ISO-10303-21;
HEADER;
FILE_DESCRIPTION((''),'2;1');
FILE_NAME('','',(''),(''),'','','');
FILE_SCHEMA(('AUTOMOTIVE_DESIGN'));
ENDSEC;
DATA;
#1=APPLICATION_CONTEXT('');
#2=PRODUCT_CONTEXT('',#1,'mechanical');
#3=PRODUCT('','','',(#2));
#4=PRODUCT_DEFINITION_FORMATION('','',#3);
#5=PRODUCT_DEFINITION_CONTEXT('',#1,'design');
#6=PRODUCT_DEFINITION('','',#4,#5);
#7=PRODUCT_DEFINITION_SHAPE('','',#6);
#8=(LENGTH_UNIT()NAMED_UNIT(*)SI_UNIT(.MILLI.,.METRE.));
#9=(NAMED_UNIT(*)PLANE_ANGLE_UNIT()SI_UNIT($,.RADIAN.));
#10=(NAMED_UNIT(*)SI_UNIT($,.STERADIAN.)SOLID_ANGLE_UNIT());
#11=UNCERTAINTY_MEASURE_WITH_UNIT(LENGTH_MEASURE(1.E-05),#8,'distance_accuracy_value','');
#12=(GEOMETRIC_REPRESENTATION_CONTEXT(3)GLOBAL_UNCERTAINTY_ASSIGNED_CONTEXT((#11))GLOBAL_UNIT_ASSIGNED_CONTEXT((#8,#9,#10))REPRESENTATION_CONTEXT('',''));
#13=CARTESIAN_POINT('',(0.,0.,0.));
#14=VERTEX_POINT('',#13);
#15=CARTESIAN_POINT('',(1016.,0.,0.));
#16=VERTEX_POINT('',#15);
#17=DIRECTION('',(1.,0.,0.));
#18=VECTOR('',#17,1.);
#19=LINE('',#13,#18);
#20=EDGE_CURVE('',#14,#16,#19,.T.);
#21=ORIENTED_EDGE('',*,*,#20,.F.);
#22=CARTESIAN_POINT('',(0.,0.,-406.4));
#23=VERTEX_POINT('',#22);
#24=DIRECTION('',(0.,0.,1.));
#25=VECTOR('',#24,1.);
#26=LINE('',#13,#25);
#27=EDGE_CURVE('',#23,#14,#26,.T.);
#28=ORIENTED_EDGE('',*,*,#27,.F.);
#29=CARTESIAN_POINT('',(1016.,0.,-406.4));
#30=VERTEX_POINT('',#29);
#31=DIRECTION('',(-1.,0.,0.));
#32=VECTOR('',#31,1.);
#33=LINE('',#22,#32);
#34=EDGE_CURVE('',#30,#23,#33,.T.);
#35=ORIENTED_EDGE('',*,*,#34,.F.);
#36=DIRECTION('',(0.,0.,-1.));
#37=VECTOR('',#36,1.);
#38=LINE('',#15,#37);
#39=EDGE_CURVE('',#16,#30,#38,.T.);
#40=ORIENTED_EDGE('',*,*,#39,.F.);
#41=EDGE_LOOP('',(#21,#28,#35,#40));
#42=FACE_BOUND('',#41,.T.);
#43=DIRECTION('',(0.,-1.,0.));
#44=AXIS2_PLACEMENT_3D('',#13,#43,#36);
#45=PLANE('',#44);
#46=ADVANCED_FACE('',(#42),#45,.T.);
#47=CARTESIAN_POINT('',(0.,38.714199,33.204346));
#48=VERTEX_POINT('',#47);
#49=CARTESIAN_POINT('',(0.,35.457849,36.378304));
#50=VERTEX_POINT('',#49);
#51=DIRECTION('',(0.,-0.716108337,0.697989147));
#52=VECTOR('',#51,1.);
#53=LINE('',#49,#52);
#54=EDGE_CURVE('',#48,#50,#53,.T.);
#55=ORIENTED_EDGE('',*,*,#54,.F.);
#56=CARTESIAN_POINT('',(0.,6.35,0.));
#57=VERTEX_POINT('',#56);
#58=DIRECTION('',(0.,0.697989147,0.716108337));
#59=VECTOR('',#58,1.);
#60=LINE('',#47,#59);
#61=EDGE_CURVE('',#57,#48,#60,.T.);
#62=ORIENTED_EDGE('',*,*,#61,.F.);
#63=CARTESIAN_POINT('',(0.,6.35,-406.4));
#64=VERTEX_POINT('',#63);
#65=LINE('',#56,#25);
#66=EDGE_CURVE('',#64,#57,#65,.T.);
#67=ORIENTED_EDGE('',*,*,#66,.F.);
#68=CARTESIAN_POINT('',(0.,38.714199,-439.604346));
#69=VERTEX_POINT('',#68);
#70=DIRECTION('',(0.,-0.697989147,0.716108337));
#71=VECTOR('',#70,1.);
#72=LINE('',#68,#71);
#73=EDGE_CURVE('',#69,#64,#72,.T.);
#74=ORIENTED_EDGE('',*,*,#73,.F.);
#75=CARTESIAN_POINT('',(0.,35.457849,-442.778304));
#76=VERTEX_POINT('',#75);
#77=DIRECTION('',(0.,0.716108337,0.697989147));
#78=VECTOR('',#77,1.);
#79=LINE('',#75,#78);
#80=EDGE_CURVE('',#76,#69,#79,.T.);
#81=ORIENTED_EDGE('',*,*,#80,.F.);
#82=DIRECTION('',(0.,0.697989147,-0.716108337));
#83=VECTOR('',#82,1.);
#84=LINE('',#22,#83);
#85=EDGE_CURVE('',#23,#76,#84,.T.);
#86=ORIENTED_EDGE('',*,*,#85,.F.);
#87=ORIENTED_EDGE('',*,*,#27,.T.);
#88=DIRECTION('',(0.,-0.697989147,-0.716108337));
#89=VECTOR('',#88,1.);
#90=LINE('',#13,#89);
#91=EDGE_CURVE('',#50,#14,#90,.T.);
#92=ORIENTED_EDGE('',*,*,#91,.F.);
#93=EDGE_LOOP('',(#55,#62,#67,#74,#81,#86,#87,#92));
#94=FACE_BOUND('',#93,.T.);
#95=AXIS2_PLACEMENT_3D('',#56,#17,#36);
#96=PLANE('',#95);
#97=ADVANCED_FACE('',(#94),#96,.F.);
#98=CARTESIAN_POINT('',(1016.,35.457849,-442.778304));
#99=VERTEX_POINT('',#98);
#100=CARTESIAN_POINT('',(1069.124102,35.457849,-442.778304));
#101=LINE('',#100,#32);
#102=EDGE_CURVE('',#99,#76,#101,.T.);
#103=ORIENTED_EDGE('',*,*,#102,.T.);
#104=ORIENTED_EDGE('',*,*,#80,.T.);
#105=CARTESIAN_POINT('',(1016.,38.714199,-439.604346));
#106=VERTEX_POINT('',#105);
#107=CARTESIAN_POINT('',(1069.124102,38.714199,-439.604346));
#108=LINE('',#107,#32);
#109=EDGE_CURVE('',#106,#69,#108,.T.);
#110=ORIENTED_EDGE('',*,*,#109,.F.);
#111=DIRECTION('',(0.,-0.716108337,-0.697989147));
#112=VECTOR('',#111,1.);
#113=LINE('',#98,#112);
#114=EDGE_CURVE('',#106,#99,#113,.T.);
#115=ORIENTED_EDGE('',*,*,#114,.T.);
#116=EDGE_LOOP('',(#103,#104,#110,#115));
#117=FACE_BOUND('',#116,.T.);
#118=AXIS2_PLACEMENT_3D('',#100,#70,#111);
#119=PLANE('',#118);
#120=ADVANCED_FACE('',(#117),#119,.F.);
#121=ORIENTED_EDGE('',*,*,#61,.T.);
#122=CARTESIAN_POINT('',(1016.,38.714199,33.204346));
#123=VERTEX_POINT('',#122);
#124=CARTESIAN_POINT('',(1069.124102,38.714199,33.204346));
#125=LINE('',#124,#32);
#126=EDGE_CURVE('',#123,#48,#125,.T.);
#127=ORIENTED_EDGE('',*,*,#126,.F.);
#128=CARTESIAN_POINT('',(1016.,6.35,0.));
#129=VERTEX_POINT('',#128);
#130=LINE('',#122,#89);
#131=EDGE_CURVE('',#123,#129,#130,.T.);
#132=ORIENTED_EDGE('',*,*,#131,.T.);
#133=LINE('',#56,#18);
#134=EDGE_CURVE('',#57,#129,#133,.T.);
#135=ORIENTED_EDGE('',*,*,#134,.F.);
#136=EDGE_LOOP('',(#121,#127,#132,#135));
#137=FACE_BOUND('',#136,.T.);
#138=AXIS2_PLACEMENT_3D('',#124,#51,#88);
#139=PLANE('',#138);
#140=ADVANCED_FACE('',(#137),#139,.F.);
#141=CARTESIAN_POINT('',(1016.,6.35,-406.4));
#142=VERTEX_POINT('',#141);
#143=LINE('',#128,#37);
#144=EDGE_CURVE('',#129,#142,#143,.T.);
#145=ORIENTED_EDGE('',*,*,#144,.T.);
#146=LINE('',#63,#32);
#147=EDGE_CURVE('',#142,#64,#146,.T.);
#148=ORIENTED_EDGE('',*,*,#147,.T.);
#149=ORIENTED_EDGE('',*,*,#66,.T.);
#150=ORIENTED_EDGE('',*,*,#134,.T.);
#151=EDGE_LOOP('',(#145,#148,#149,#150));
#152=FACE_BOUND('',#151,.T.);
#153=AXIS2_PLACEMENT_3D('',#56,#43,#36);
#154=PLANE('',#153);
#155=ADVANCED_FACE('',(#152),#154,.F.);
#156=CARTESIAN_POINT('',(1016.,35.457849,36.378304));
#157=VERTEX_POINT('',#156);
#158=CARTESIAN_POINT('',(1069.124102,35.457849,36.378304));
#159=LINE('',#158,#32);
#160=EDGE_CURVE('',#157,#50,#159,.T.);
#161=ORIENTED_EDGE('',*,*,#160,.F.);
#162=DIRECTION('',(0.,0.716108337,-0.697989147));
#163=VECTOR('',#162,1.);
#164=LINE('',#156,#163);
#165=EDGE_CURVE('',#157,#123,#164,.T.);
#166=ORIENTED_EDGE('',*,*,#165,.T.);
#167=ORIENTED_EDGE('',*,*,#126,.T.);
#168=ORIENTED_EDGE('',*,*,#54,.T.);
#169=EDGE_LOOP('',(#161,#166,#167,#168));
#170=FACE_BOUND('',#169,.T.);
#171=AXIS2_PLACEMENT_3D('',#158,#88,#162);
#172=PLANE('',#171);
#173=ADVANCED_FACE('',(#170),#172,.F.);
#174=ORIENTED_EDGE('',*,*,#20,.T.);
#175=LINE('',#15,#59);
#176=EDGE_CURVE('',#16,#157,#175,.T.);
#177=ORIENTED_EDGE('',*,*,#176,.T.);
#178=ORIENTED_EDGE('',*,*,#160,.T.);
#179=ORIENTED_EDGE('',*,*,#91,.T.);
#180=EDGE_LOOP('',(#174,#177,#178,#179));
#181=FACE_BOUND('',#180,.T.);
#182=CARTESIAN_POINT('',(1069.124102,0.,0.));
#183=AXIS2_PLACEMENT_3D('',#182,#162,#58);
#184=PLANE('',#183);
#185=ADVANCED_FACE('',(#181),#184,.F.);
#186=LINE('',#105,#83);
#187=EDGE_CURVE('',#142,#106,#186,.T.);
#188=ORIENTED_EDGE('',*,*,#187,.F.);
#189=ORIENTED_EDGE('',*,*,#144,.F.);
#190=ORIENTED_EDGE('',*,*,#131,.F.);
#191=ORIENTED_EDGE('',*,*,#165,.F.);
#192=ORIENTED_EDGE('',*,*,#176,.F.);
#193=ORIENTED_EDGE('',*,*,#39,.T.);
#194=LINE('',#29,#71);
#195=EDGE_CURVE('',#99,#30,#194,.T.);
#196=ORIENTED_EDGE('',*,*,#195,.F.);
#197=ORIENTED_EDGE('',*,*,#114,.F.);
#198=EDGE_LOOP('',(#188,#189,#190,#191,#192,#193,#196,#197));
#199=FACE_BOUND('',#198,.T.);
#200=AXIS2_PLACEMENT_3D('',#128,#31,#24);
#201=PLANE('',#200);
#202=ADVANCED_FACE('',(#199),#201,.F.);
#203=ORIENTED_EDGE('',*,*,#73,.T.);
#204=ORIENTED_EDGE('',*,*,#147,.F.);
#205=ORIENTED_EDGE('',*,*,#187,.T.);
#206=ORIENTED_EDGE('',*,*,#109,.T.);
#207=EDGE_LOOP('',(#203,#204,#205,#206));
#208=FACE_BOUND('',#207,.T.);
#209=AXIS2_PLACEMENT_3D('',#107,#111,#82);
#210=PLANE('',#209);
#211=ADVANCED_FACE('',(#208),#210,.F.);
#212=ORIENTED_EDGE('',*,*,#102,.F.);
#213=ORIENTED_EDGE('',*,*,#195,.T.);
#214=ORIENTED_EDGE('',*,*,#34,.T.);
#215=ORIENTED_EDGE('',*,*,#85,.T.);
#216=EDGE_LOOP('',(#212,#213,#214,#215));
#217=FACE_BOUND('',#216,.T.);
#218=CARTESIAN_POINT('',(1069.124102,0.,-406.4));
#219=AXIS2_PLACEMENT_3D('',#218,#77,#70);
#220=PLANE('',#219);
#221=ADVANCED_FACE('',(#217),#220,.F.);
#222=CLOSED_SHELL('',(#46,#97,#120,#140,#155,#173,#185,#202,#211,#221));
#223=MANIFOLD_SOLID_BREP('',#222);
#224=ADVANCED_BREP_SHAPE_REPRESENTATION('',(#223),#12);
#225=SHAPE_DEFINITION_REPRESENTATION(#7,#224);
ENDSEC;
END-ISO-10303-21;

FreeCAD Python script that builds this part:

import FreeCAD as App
import Part
import Sketcher
Q = App.Units.Quantity

doc = App.newDocument("Part")
body = doc.addObject("PartDesign::Body", "Body")

# Sketch on XZ plane
sketch1 = body.newObject("Sketcher::SketchObject", "Sketch")
sketch1.AttachmentSupport = (doc.getObject("XZ_Plane"), [""])
sketch1.MapMode = "FlatFace"
sketch1.addGeometry(Part.LineSegment(App.Vector(0, -406, 0), App.Vector(0, 0, 0)), False)
sketch1.addGeometry(Part.LineSegment(App.Vector(0, 0, 0), App.Vector(1016, 0, 0)), False)
sketch1.addGeometry(Part.LineSegment(App.Vector(1016, 0, 0), App.Vector(1016, -406, 0)), False)
sketch1.addGeometry(Part.LineSegment(App.Vector(1016, -406, 0), App.Vector(0, -406, 0)), False)
sketch1.addConstraint(Sketcher.Constraint("Coincident", 0, 2, 1, 1))
sketch1.addConstraint(Sketcher.Constraint("Coincident", 1, 2, 2, 1))
sketch1.addConstraint(Sketcher.Constraint("Coincident", 2, 2, 3, 1))
sketch1.addConstraint(Sketcher.Constraint("Coincident", 3, 2, 0, 1))
sketch1.addConstraint(Sketcher.Constraint("Vertical", 0))
sketch1.addConstraint(Sketcher.Constraint("Horizontal", 1))
sketch1.addConstraint(Sketcher.Constraint("Vertical", 2))
sketch1.addConstraint(Sketcher.Constraint("Horizontal", 3))
sketch1.addConstraint(Sketcher.Constraint("Coincident", 0, 2, -1, 1))
sketch1.addConstraint(Sketcher.Constraint("DistanceX", 1, 1, 1, 2, Q("40 in")))
sketch1.addConstraint(Sketcher.Constraint("DistanceY", 0, 1, 0, 2, Q("16 in")))
pad1 = body.newObject("PartDesign::Pad", "Pad")
pad1.Profile = sketch1
pad1.Length = Q("0.25 in")
pad1.Reversed = True

# Sketch on YZ plane
sketch2 = body.newObject("Sketcher::SketchObject", "Sketch001")
sketch2.AttachmentSupport = (doc.getObject("YZ_Plane"), [""])
sketch2.MapMode = "FlatFace"
sketch2.addGeometry(Part.LineSegment(App.Vector(35.5, 36.4, 0), App.Vector(0, 0, 0)), False)
sketch2.addGeometry(Part.LineSegment(App.Vector(0, 0, 0), App.Vector(6.3, 0, 0)), False)
sketch2.addGeometry(Part.LineSegment(App.Vector(6.3, 0, 0), App.Vector(38.7, 33.2, 0)), False)
sketch2.addGeometry(Part.LineSegment(App.Vector(38.7, 33.2, 0), App.Vector(35.5, 36.4, 0)), False)
sketch2.addGeometry(Part.LineSegment(App.Vector(6.3, -406.4, 0), App.Vector(0, -406.4, 0)), False)
sketch2.addGeometry(Part.LineSegment(App.Vector(0, -406.4, 0), App.Vector(35.5, -442.8, 0)), False)
sketch2.addGeometry(Part.LineSegment(App.Vector(35.5, -442.8, 0), App.Vector(38.7, -439.6, 0)), False)
sketch2.addGeometry(Part.LineSegment(App.Vector(38.7, -439.6, 0), App.Vector(6.3, -406.4, 0)), False)
sketch2.addConstraint(Sketcher.Constraint("Coincident", 0, 2, 1, 1))
sketch2.addConstraint(Sketcher.Constraint("Coincident", 1, 2, 2, 1))
sketch2.addConstraint(Sketcher.Constraint("Coincident", 2, 2, 3, 1))
sketch2.addConstraint(Sketcher.Constraint("Coincident", 3, 2, 0, 1))
sketch2.addConstraint(Sketcher.Constraint("Coincident", 4, 2, 5, 1))
sketch2.addConstraint(Sketcher.Constraint("Coincident", 5, 2, 6, 1))
sketch2.addConstraint(Sketcher.Constraint("Coincident", 6, 2, 7, 1))
sketch2.addConstraint(Sketcher.Constraint("Coincident", 7, 2, 4, 1))
sketch2.addConstraint(Sketcher.Constraint("Horizontal", 1))
sketch2.addConstraint(Sketcher.Constraint("Horizontal", 4))
sketch2.addConstraint(Sketcher.Constraint("Coincident", 0, 2, -1, 1))
sketch2.addConstraint(Sketcher.Constraint("PointOnObject", 4, 2, -2))
sketch2.addConstraint(Sketcher.Constraint("Parallel", 0, 2))
sketch2.addConstraint(Sketcher.Constraint("Perpendicular", 2, 3))
sketch2.addConstraint(Sketcher.Constraint("Perpendicular", 5, 6))
sketch2.addConstraint(Sketcher.Constraint("Perpendicular", 6, 7))
sketch2.addConstraint(Sketcher.Constraint("Vertical", 3, 2, 5, 2))
sketch2.addConstraint(Sketcher.Constraint("Vertical", 2, 2, 6, 2))
sketch2.addConstraint(Sketcher.Constraint("Vertical", 1, 2, 7, 2))
sketch2.addConstraint(Sketcher.Constraint("Distance", 0, Q("2 in")))
sketch2.addConstraint(Sketcher.Constraint("DistanceY", 4, 2, -1, 1, Q("16 in")))
sketch2.addConstraint(Sketcher.Constraint("DistanceX", 1, 1, 1, 2, Q("0.25 in")))
sketch2.addConstraint(Sketcher.Constraint("DistanceX", -1, 1, 2, 2, 38.714199))
pad2 = body.newObject("PartDesign::Pad", "Pad001")
pad2.Profile = sketch2
pad2.Length = Q("40 in")

doc.recompute()
